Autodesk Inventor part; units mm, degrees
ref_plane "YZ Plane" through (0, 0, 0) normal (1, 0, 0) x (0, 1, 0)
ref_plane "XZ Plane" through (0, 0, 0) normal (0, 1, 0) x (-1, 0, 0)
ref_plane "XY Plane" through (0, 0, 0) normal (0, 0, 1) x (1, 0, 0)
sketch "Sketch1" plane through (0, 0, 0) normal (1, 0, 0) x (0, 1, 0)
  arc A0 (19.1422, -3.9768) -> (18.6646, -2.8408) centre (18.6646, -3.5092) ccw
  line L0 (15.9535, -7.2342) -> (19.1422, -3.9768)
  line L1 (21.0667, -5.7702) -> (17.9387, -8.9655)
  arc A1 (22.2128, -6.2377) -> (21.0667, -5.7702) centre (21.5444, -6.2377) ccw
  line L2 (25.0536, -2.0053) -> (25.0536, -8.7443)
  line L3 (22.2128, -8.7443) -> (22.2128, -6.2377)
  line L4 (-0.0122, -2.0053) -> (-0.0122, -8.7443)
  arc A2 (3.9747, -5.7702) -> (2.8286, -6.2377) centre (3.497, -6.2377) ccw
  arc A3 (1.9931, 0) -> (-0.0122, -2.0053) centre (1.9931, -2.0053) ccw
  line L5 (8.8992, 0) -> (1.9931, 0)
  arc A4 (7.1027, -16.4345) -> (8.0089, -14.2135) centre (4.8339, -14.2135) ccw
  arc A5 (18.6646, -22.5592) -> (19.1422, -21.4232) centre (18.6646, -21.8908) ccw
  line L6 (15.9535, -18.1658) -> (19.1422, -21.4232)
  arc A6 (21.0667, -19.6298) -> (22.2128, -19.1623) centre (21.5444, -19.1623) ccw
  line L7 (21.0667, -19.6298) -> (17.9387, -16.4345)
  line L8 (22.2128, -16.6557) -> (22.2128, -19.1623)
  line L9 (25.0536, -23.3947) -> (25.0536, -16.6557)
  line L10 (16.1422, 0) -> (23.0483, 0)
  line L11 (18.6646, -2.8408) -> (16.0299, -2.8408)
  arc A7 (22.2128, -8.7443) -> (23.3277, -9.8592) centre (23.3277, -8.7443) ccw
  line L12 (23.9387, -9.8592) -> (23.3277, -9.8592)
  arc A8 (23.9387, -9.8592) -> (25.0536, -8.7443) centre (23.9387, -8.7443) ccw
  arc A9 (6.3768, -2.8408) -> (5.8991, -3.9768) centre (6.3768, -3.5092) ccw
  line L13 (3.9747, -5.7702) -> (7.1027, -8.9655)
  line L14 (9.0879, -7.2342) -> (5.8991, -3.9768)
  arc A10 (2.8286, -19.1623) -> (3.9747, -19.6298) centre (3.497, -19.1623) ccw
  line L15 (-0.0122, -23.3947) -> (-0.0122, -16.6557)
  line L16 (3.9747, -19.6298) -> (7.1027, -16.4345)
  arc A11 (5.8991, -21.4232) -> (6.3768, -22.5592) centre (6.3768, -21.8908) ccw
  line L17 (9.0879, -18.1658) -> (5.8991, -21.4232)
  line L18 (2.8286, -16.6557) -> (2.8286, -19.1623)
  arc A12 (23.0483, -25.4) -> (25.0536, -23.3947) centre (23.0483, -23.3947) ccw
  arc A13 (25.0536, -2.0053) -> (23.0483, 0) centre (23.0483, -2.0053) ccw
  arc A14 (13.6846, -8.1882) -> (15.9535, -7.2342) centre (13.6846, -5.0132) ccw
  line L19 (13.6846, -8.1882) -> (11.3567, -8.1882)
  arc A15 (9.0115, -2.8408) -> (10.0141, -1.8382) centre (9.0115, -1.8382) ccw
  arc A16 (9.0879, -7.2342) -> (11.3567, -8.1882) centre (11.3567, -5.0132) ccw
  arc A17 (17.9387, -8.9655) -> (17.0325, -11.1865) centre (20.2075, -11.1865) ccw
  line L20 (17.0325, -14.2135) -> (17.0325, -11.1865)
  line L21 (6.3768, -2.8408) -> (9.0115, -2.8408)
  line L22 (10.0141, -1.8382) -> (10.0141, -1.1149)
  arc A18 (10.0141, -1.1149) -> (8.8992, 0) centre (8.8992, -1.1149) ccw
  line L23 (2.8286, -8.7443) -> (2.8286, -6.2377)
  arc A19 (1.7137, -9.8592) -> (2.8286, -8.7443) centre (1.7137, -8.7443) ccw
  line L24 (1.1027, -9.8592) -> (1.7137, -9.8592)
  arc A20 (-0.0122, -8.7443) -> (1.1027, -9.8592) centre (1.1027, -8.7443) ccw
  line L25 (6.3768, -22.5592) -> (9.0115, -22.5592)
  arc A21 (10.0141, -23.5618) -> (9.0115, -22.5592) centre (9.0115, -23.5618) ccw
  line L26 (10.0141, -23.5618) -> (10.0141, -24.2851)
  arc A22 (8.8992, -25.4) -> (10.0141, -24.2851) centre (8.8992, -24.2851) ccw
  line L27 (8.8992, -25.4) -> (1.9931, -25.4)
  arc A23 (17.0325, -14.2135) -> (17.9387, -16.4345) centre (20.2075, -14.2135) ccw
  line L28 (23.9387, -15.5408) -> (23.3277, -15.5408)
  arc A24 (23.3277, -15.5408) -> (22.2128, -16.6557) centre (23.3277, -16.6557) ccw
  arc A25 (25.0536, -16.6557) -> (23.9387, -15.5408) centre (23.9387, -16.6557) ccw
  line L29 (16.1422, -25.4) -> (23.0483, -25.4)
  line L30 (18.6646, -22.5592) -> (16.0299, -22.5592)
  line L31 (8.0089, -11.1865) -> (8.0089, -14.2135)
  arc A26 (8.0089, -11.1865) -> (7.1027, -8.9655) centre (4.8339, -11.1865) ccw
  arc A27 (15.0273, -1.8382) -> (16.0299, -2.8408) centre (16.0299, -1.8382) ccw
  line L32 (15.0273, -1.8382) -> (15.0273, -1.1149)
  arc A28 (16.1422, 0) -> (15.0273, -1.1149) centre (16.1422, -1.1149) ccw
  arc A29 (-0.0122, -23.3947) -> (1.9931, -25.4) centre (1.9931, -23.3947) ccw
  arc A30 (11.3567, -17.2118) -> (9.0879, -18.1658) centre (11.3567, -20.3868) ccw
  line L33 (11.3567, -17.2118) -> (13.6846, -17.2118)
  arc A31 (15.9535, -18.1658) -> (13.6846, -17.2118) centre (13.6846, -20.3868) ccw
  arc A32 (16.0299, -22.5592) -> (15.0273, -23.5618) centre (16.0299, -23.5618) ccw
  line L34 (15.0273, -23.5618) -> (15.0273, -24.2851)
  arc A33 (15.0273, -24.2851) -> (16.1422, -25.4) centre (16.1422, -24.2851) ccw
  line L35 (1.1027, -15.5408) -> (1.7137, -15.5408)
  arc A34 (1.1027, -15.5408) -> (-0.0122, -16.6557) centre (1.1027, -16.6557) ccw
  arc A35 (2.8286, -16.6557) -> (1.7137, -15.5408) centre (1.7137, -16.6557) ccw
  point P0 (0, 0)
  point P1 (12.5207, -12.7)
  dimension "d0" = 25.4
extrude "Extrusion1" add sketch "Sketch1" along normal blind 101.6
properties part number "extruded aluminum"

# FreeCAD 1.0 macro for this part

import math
import FreeCAD as App
import Part
import Sketcher
Q = App.Units.Quantity

doc = App.newDocument("Part")
body = doc.addObject("PartDesign::Body", "Body")

sketch1 = body.newObject("Sketcher::SketchObject", "Sketch")
sketch1.AttachmentSupport = (doc.getObject("YZ_Plane"), [""])
sketch1.MapMode = "FlatFace"
sketch1.addGeometry([
    Part.ArcOfCircle(Part.Circle(App.Vector(18.7, -3.5, 0), App.Vector(0, 0, 1), 0.7), math.radians(-44), math.radians(90)),
    Part.LineSegment(App.Vector(19.1, -4, 0), App.Vector(16, -7.2, 0)),
    Part.ArcOfCircle(Part.Circle(App.Vector(13.7, -5, 0), App.Vector(0, 0, 1), 3.2), math.radians(-90), math.radians(-44)),
    Part.LineSegment(App.Vector(13.7, -8.2, 0), App.Vector(11.4, -8.2, 0)),
    Part.ArcOfCircle(Part.Circle(App.Vector(11.4, -5, 0), App.Vector(0, 0, 1), 3.2), math.radians(-136), math.radians(-90)),
    Part.LineSegment(App.Vector(9.1, -7.2, 0), App.Vector(5.9, -4, 0)),
    Part.ArcOfCircle(Part.Circle(App.Vector(6.4, -3.5, 0), App.Vector(0, 0, 1), 0.7), math.radians(90), math.radians(224)),
    Part.LineSegment(App.Vector(6.4, -2.8, 0), App.Vector(9, -2.8, 0)),
    Part.ArcOfCircle(Part.Circle(App.Vector(9, -1.8, 0), App.Vector(0, 0, 1), 1), math.radians(-90), math.radians(0)),
    Part.LineSegment(App.Vector(10, -1.8, 0), App.Vector(10, -1.1, 0)),
    Part.ArcOfCircle(Part.Circle(App.Vector(8.9, -1.1, 0), App.Vector(0, 0, 1), 1.1), math.radians(0), math.radians(90)),
    Part.LineSegment(App.Vector(8.9, 0, 0), App.Vector(2, 0, 0)),
    Part.ArcOfCircle(Part.Circle(App.Vector(2, -2, 0), App.Vector(0, 0, 1), 2), math.radians(90), math.radians(180)),
    Part.LineSegment(App.Vector(0, -2, 0), App.Vector(0, -8.7, 0)),
    Part.ArcOfCircle(Part.Circle(App.Vector(1.1, -8.7, 0), App.Vector(0, 0, 1), 1.1), math.radians(180), math.radians(270)),
    Part.LineSegment(App.Vector(1.1, -9.9, 0), App.Vector(1.7, -9.9, 0)),
    Part.ArcOfCircle(Part.Circle(App.Vector(1.7, -8.7, 0), App.Vector(0, 0, 1), 1.1), math.radians(-90), math.radians(0)),
    Part.LineSegment(App.Vector(2.8, -8.7, 0), App.Vector(2.8, -6.2, 0)),
    Part.ArcOfCircle(Part.Circle(App.Vector(3.5, -6.2, 0), App.Vector(0, 0, 1), 0.7), math.radians(44), math.radians(180)),
    Part.LineSegment(App.Vector(4, -5.8, 0), App.Vector(7.1, -9, 0)),
    Part.ArcOfCircle(Part.Circle(App.Vector(4.8, -11.2, 0), App.Vector(0, 0, 1), 3.2), math.radians(0), math.radians(44)),
    Part.LineSegment(App.Vector(8, -11.2, 0), App.Vector(8, -14.2, 0)),
    Part.ArcOfCircle(Part.Circle(App.Vector(4.8, -14.2, 0), App.Vector(0, 0, 1), 3.2), math.radians(-44), math.radians(0)),
    Part.LineSegment(App.Vector(7.1, -16.4, 0), App.Vector(4, -19.6, 0)),
    Part.ArcOfCircle(Part.Circle(App.Vector(3.5, -19.2, 0), App.Vector(0, 0, 1), 0.7), math.radians(180), math.radians(316)),
    Part.LineSegment(App.Vector(2.8, -19.2, 0), App.Vector(2.8, -16.7, 0)),
    Part.ArcOfCircle(Part.Circle(App.Vector(1.7, -16.7, 0), App.Vector(0, 0, 1), 1.1), math.radians(0), math.radians(90)),
    Part.LineSegment(App.Vector(1.7, -15.5, 0), App.Vector(1.1, -15.5, 0)),
    Part.ArcOfCircle(Part.Circle(App.Vector(1.1, -16.7, 0), App.Vector(0, 0, 1), 1.1), math.radians(90), math.radians(180)),
    Part.LineSegment(App.Vector(0, -16.7, 0), App.Vector(0, -23.4, 0)),
    Part.ArcOfCircle(Part.Circle(App.Vector(2, -23.4, 0), App.Vector(0, 0, 1), 2), math.radians(180), math.radians(270)),
    Part.LineSegment(App.Vector(2, -25.4, 0), App.Vector(8.9, -25.4, 0)),
    Part.ArcOfCircle(Part.Circle(App.Vector(8.9, -24.3, 0), App.Vector(0, 0, 1), 1.1), math.radians(-90), math.radians(0)),
    Part.LineSegment(App.Vector(10, -24.3, 0), App.Vector(10, -23.6, 0)),
    Part.ArcOfCircle(Part.Circle(App.Vector(9, -23.6, 0), App.Vector(0, 0, 1), 1), math.radians(0), math.radians(90)),
    Part.LineSegment(App.Vector(9, -22.6, 0), App.Vector(6.4, -22.6, 0)),
    Part.ArcOfCircle(Part.Circle(App.Vector(6.4, -21.9, 0), App.Vector(0, 0, 1), 0.7), math.radians(136), math.radians(270)),
    Part.LineSegment(App.Vector(5.9, -21.4, 0), App.Vector(9.1, -18.2, 0)),
    Part.ArcOfCircle(Part.Circle(App.Vector(11.4, -20.4, 0), App.Vector(0, 0, 1), 3.2), math.radians(90), math.radians(136)),
    Part.LineSegment(App.Vector(11.4, -17.2, 0), App.Vector(13.7, -17.2, 0)),
    Part.ArcOfCircle(Part.Circle(App.Vector(13.7, -20.4, 0), App.Vector(0, 0, 1), 3.2), math.radians(44), math.radians(90)),
    Part.LineSegment(App.Vector(16, -18.2, 0), App.Vector(19.1, -21.4, 0)),
    Part.ArcOfCircle(Part.Circle(App.Vector(18.7, -21.9, 0), App.Vector(0, 0, 1), 0.7), math.radians(-90), math.radians(44)),
    Part.LineSegment(App.Vector(18.7, -22.6, 0), App.Vector(16, -22.6, 0)),
    Part.ArcOfCircle(Part.Circle(App.Vector(16, -23.6, 0), App.Vector(0, 0, 1), 1), math.radians(90), math.radians(180)),
    Part.LineSegment(App.Vector(15, -23.6, 0), App.Vector(15, -24.3, 0)),
    Part.ArcOfCircle(Part.Circle(App.Vector(16.1, -24.3, 0), App.Vector(0, 0, 1), 1.1), math.radians(180), math.radians(270)),
    Part.LineSegment(App.Vector(16.1, -25.4, 0), App.Vector(23, -25.4, 0)),
    Part.ArcOfCircle(Part.Circle(App.Vector(23, -23.4, 0), App.Vector(0, 0, 1), 2), math.radians(-90), math.radians(0)),
    Part.LineSegment(App.Vector(25.1, -23.4, 0), App.Vector(25.1, -16.7, 0)),
    Part.ArcOfCircle(Part.Circle(App.Vector(23.9, -16.7, 0), App.Vector(0, 0, 1), 1.1), math.radians(0), math.radians(90)),
    Part.LineSegment(App.Vector(23.9, -15.5, 0), App.Vector(23.3, -15.5, 0)),
    Part.ArcOfCircle(Part.Circle(App.Vector(23.3, -16.7, 0), App.Vector(0, 0, 1), 1.1), math.radians(90), math.radians(180)),
    Part.LineSegment(App.Vector(22.2, -16.7, 0), App.Vector(22.2, -19.2, 0)),
    Part.ArcOfCircle(Part.Circle(App.Vector(21.5, -19.2, 0), App.Vector(0, 0, 1), 0.7), math.radians(-136), math.radians(0)),
    Part.LineSegment(App.Vector(21.1, -19.6, 0), App.Vector(17.9, -16.4, 0)),
    Part.ArcOfCircle(Part.Circle(App.Vector(20.2, -14.2, 0), App.Vector(0, 0, 1), 3.2), math.radians(180), math.radians(224)),
    Part.LineSegment(App.Vector(17, -14.2, 0), App.Vector(17, -11.2, 0)),
    Part.ArcOfCircle(Part.Circle(App.Vector(20.2, -11.2, 0), App.Vector(0, 0, 1), 3.2), math.radians(136), math.radians(180)),
    Part.LineSegment(App.Vector(17.9, -9, 0), App.Vector(21.1, -5.8, 0)),
    Part.ArcOfCircle(Part.Circle(App.Vector(21.5, -6.2, 0), App.Vector(0, 0, 1), 0.7), math.radians(0), math.radians(136)),
    Part.LineSegment(App.Vector(22.2, -6.2, 0), App.Vector(22.2, -8.7, 0)),
    Part.ArcOfCircle(Part.Circle(App.Vector(23.3, -8.7, 0), App.Vector(0, 0, 1), 1.1), math.radians(180), math.radians(270)),
    Part.LineSegment(App.Vector(23.3, -9.9, 0), App.Vector(23.9, -9.9, 0)),
    Part.ArcOfCircle(Part.Circle(App.Vector(23.9, -8.7, 0), App.Vector(0, 0, 1), 1.1), math.radians(-90), math.radians(0)),
    Part.LineSegment(App.Vector(25.1, -8.7, 0), App.Vector(25.1, -2, 0)),
    Part.ArcOfCircle(Part.Circle(App.Vector(23, -2, 0), App.Vector(0, 0, 1), 2), math.radians(0), math.radians(90)),
    Part.LineSegment(App.Vector(23, 0, 0), App.Vector(16.1, 0, 0)),
    Part.ArcOfCircle(Part.Circle(App.Vector(16.1, -1.1, 0), App.Vector(0, 0, 1), 1.1), math.radians(90), math.radians(180)),
    Part.LineSegment(App.Vector(15, -1.1, 0), App.Vector(15, -1.8, 0)),
    Part.ArcOfCircle(Part.Circle(App.Vector(16, -1.8, 0), App.Vector(0, 0, 1), 1), math.radians(180), math.radians(270)),
    Part.LineSegment(App.Vector(16, -2.8, 0), App.Vector(18.7, -2.8, 0)),
], False)
sketch1.addConstraint([
    Sketcher.Constraint("Tangent", 0, 1, 1, 1),
    Sketcher.Constraint("Tangent", 1, 2, 2, 2),
    Sketcher.Constraint("Tangent", 2, 1, 3, 1),
    Sketcher.Constraint("Tangent", 3, 2, 4, 2),
    Sketcher.Constraint("Tangent", 4, 1, 5, 1),
    Sketcher.Constraint("Tangent", 5, 2, 6, 2),
    Sketcher.Constraint("Tangent", 6, 1, 7, 1),
    Sketcher.Constraint("Tangent", 7, 2, 8, 1),
    Sketcher.Constraint("Tangent", 8, 2, 9, 1),
    Sketcher.Constraint("Tangent", 9, 2, 10, 1),
    Sketcher.Constraint("Tangent", 10, 2, 11, 1),
    Sketcher.Constraint("Tangent", 11, 2, 12, 1),
    Sketcher.Constraint("Tangent", 12, 2, 13, 1),
    Sketcher.Constraint("Tangent", 13, 2, 14, 1),
    Sketcher.Constraint("Tangent", 14, 2, 15, 1),
    Sketcher.Constraint("Tangent", 15, 2, 16, 1),
    Sketcher.Constraint("Tangent", 16, 2, 17, 1),
    Sketcher.Constraint("Tangent", 17, 2, 18, 2),
    Sketcher.Constraint("Tangent", 18, 1, 19, 1),
    Sketcher.Constraint("Tangent", 19, 2, 20, 2),
    Sketcher.Constraint("Tangent", 20, 1, 21, 1),
    Sketcher.Constraint("Tangent", 21, 2, 22, 2),
    Sketcher.Constraint("Tangent", 22, 1, 23, 1),
    Sketcher.Constraint("Tangent", 23, 2, 24, 2),
    Sketcher.Constraint("Tangent", 24, 1, 25, 1),
    Sketcher.Constraint("Tangent", 25, 2, 26, 1),
    Sketcher.Constraint("Tangent", 26, 2, 27, 1),
    Sketcher.Constraint("Tangent", 27, 2, 28, 1),
    Sketcher.Constraint("Tangent", 28, 2, 29, 1),
    Sketcher.Constraint("Tangent", 29, 2, 30, 1),
    Sketcher.Constraint("Tangent", 30, 2, 31, 1),
    Sketcher.Constraint("Tangent", 31, 2, 32, 1),
    Sketcher.Constraint("Tangent", 32, 2, 33, 1),
    Sketcher.Constraint("Tangent", 33, 2, 34, 1),
    Sketcher.Constraint("Tangent", 34, 2, 35, 1),
    Sketcher.Constraint("Tangent", 35, 2, 36, 2),
    Sketcher.Constraint("Tangent", 36, 1, 37, 1),
    Sketcher.Constraint("Tangent", 37, 2, 38, 2),
    Sketcher.Constraint("Tangent", 38, 1, 39, 1),
    Sketcher.Constraint("Tangent", 39, 2, 40, 2),
    Sketcher.Constraint("Tangent", 40, 1, 41, 1),
    Sketcher.Constraint("Tangent", 41, 2, 42, 2),
    Sketcher.Constraint("Tangent", 42, 1, 43, 1),
    Sketcher.Constraint("Tangent", 43, 2, 44, 1),
    Sketcher.Constraint("Tangent", 44, 2, 45, 1),
    Sketcher.Constraint("Tangent", 45, 2, 46, 1),
    Sketcher.Constraint("Tangent", 46, 2, 47, 1),
    Sketcher.Constraint("Tangent", 47, 2, 48, 1),
    Sketcher.Constraint("Tangent", 48, 2, 49, 1),
    Sketcher.Constraint("Tangent", 49, 2, 50, 1),
    Sketcher.Constraint("Tangent", 50, 2, 51, 1),
    Sketcher.Constraint("Tangent", 51, 2, 52, 1),
    Sketcher.Constraint("Tangent", 52, 2, 53, 1),
    Sketcher.Constraint("Tangent", 53, 2, 54, 2),
    Sketcher.Constraint("Tangent", 54, 1, 55, 1),
    Sketcher.Constraint("Tangent", 55, 2, 56, 2),
    Sketcher.Constraint("Tangent", 56, 1, 57, 1),
    Sketcher.Constraint("Tangent", 57, 2, 58, 2),
    Sketcher.Constraint("Tangent", 58, 1, 59, 1),
    Sketcher.Constraint("Tangent", 59, 2, 60, 2),
    Sketcher.Constraint("Tangent", 60, 1, 61, 1),
    Sketcher.Constraint("Tangent", 61, 2, 62, 1),
    Sketcher.Constraint("Tangent", 62, 2, 63, 1),
    Sketcher.Constraint("Tangent", 63, 2, 64, 1),
    Sketcher.Constraint("Tangent", 64, 2, 65, 1),
    Sketcher.Constraint("Tangent", 65, 2, 66, 1),
    Sketcher.Constraint("Tangent", 66, 2, 67, 1),
    Sketcher.Constraint("Tangent", 67, 2, 68, 1),
    Sketcher.Constraint("Tangent", 68, 2, 69, 1),
    Sketcher.Constraint("Tangent", 69, 2, 70, 1),
    Sketcher.Constraint("Tangent", 70, 2, 71, 1),
    Sketcher.Constraint("Tangent", 71, 2, 0, 2),
    Sketcher.Constraint("Horizontal", 3),
    Sketcher.Constraint("Horizontal", 7),
    Sketcher.Constraint("Vertical", 9),
    Sketcher.Constraint("Horizontal", 11),
    Sketcher.Constraint("Vertical", 13),
    Sketcher.Constraint("Horizontal", 15),
    Sketcher.Constraint("Vertical", 17),
    Sketcher.Constraint("Vertical", 21),
    Sketcher.Constraint("Vertical", 25),
    Sketcher.Constraint("Horizontal", 27),
    Sketcher.Constraint("Vertical", 29),
    Sketcher.Constraint("Horizontal", 31),
    Sketcher.Constraint("Vertical", 33),
    Sketcher.Constraint("Horizontal", 35),
    Sketcher.Constraint("Horizontal", 39),
    Sketcher.Constraint("Horizontal", 43),
    Sketcher.Constraint("Vertical", 45),
    Sketcher.Constraint("Horizontal", 47),
    Sketcher.Constraint("Vertical", 49),
    Sketcher.Constraint("Horizontal", 51),
    Sketcher.Constraint("Vertical", 53),
    Sketcher.Constraint("Vertical", 57),
    Sketcher.Constraint("Vertical", 61),
    Sketcher.Constraint("Horizontal", 63),
    Sketcher.Constraint("Vertical", 65),
    Sketcher.Constraint("Horizontal", 67),
    Sketcher.Constraint("Vertical", 69),
    Sketcher.Constraint("Horizontal", 71),
    Sketcher.Constraint("Equal", 2, 4),
    Sketcher.Constraint("Equal", 0, 6),
    Sketcher.Constraint("Equal", 10, 14),
    Sketcher.Constraint("Equal", 14, 16),
    Sketcher.Constraint("Equal", 6, 18),
    Sketcher.Constraint("Equal", 4, 20),
    Sketcher.Constraint("Equal", 20, 22),
    Sketcher.Constraint("Equal", 18, 24),
    Sketcher.Constraint("Equal", 16, 26),
    Sketcher.Constraint("Equal", 26, 28),
    Sketcher.Constraint("Equal", 12, 30),
    Sketcher.Constraint("Equal", 28, 32),
    Sketcher.Constraint("Equal", 8, 34),
    Sketcher.Constraint("Equal", 24, 36),
    Sketcher.Constraint("Equal", 22, 38),
    Sketcher.Constraint("Equal", 38, 40),
    Sketcher.Constraint("Equal", 36, 42),
    Sketcher.Constraint("Equal", 34, 44),
    Sketcher.Constraint("Equal", 32, 46),
    Sketcher.Constraint("Equal", 30, 48),
    Sketcher.Constraint("Equal", 46, 50),
    Sketcher.Constraint("Equal", 50, 52),
    Sketcher.Constraint("Equal", 42, 54),
    Sketcher.Constraint("Equal", 40, 56),
    Sketcher.Constraint("Equal", 56, 58),
    Sketcher.Constraint("Equal", 54, 60),
    Sketcher.Constraint("Equal", 52, 62),
    Sketcher.Constraint("Equal", 62, 64),
    Sketcher.Constraint("Equal", 48, 66),
    Sketcher.Constraint("Equal", 64, 68),
    Sketcher.Constraint("Equal", 44, 70),
    Sketcher.Constraint("PointOnObject", 10, 2, -1),
    Sketcher.Constraint("PointOnObject", 66, 2, -1),
    Sketcher.Constraint("Parallel", 5, 19),
    Sketcher.Constraint("Parallel", 1, 23),
    Sketcher.Constraint("Parallel", 23, 37),
    Sketcher.Constraint("Parallel", 19, 41),
    Sketcher.Constraint("Parallel", 41, 55),
    Sketcher.Constraint("Parallel", 37, 59),
    Sketcher.Constraint("Horizontal", 0, 3, 6, 3),
    Sketcher.Constraint("Horizontal", 36, 3, 42, 3),
    Sketcher.Constraint("Horizontal", 32, 3, 46, 3),
    Sketcher.Constraint("Horizontal", 28, 3, 50, 3),
    Sketcher.Constraint("Horizontal", 24, 3, 54, 3),
    Sketcher.Constraint("Horizontal", 22, 3, 56, 3),
    Sketcher.Constraint("Horizontal", 20, 3, 58, 3),
    Sketcher.Constraint("Horizontal", 18, 3, 60, 3),
    Sketcher.Constraint("Horizontal", 16, 3, 62, 3),
    Sketcher.Constraint("Horizontal", 1, 2, 4, 1),
    Sketcher.Constraint("Vertical", 18, 3, 24, 3),
    Sketcher.Constraint("Vertical", 14, 3, 28, 3),
    Sketcher.Constraint("Vertical", 10, 3, 32, 3),
    Sketcher.Constraint("Vertical", 6, 3, 36, 3),
    Sketcher.Constraint("Vertical", 4, 3, 38, 3),
    Sketcher.Constraint("Vertical", 2, 3, 40, 3),
    Sketcher.Constraint("Vertical", 50, 3, 64, 3),
    Sketcher.Constraint("Vertical", 46, 3, 68, 3),
    Sketcher.Constraint("Equal", 35, 43),
    Sketcher.Constraint("Equal", 31, 47),
    Sketcher.Constraint("Equal", 27, 51),
    Sketcher.Constraint("Equal", 17, 25),
    Sketcher.Constraint("Equal", 13, 29),
    Sketcher.Constraint("Equal", 9, 33),
    Sketcher.Constraint("DistanceY", 30, 2, -1, 1, Q("1 in")),
    Sketcher.Constraint("Radius", 2, Q("0.125 in")),
    Sketcher.Constraint("Radius", 10, Q("0.0439 in")),
    Sketcher.Constraint("Angle", 1, Q("-134.3894 deg")),
    Sketcher.Constraint("Radius", 0, 0.6684),
    Sketcher.Constraint("Radius", 8, 1.0026),
    Sketcher.Constraint("Radius", 12, 2.0053),
    Sketcher.Constraint("DistanceX", 11, 2, 11, 1, Q("0.2719 in")),
    Sketcher.Constraint("DistanceX", 3, 2, 3, 1, 2.328),
    Sketcher.Constraint("DistanceX", 7, 1, 7, 2, 2.6347),
    Sketcher.Constraint("DistanceX", 15, 1, 15, 2, 0.611),
    Sketcher.Constraint("DistanceY", 9, 1, 9, 2, 0.7233),
    Sketcher.Constraint("DistanceY", 13, 2, 13, 1, 6.739),
    Sketcher.Constraint("DistanceY", 17, 1, 17, 2, 2.5066),
    Sketcher.Constraint("DistanceY", 21, 2, 21, 1, 3.027),
    Sketcher.Constraint("DistanceX", -1, 1, 20, 3, Q("0.1903 in")),
    Sketcher.Constraint("DistanceX", -1, 1, 44, 3, Q("0.6311 in")),
])
pad1 = body.newObject("PartDesign::Pad", "Pad")
pad1.Profile = sketch1
pad1.Length = Q("4 in")

doc.recompute()
